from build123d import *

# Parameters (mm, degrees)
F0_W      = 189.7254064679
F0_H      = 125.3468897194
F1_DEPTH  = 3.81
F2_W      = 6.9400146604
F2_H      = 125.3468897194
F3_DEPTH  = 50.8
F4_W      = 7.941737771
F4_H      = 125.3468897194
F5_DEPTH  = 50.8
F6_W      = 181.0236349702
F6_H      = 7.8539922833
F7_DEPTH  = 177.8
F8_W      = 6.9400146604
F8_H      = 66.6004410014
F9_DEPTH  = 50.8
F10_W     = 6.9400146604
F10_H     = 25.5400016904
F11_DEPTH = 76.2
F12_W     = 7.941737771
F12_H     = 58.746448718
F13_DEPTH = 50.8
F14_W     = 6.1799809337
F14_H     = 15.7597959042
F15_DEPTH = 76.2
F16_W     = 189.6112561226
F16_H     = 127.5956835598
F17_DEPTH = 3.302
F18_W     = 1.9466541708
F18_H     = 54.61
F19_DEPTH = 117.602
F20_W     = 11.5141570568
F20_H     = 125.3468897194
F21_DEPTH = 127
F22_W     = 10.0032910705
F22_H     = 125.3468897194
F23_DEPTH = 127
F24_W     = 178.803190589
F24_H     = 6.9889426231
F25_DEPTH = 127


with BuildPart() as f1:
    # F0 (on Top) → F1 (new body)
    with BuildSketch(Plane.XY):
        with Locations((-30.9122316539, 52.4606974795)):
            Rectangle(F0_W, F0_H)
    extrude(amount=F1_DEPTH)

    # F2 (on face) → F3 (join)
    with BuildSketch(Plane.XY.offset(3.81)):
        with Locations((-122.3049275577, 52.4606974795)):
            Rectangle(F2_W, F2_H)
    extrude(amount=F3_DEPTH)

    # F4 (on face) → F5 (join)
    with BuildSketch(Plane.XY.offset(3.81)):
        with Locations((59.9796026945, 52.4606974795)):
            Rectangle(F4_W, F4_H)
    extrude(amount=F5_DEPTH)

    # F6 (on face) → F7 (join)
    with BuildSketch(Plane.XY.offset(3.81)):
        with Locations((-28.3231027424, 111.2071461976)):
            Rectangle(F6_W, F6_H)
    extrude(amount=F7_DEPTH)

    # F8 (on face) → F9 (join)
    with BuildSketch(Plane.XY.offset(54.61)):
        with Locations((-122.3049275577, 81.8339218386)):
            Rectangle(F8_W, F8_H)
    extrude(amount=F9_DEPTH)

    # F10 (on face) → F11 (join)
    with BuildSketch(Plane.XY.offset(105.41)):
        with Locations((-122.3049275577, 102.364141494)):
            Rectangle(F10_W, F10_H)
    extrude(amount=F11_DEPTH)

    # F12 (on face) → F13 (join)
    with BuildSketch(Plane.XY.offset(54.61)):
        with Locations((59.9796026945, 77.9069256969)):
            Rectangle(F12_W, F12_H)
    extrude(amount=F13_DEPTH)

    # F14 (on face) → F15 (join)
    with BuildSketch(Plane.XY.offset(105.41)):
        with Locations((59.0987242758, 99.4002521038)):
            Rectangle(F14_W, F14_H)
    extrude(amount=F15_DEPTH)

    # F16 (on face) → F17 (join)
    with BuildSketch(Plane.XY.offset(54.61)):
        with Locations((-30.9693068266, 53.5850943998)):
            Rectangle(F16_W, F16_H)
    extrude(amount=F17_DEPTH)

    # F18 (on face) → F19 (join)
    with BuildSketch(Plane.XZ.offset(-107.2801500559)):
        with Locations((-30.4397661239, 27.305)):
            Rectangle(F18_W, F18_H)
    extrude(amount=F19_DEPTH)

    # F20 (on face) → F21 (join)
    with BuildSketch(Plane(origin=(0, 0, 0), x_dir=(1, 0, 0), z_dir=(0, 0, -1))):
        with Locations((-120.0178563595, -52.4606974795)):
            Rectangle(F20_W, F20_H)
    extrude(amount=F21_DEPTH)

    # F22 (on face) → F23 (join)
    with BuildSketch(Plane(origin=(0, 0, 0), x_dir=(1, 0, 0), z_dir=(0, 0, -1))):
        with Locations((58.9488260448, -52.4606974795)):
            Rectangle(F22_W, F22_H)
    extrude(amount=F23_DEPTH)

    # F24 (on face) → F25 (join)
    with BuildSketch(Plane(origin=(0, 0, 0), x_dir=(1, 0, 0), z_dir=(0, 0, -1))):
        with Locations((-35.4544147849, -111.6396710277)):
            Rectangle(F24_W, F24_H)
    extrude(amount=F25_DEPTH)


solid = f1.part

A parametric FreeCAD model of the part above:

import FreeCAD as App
import Part
import Sketcher
from FreeCAD import Vector
Q = App.Units.Quantity


def add_polygon(sketch, points):
    """Adds a closed chain of lines whose ends are joined by coincident constraints."""
    first, n = sketch.GeometryCount, len(points)
    for a, b in zip(points, points[1:] + points[:1]):
        sketch.addGeometry(Part.LineSegment(App.Vector(*a, 0), App.Vector(*b, 0)), False)
    for i in range(n):
        sketch.addConstraint(Sketcher.Constraint("Coincident", first + i, 2, first + (i + 1) % n, 1))

doc = App.newDocument("Part")
body = doc.addObject("PartDesign::Body", "Body")

# Sketch on XY plane
sketch1 = body.newObject("Sketcher::SketchObject", "Sketch")
sketch1.AttachmentSupport = (doc.getObject("XY_Plane"), [""])
sketch1.MapMode = "FlatFace"
add_polygon(sketch1, [(-126, 115), (-126, -10), (64, -10), (64, 115)])  # lines 0-3
sketch1.addConstraint([
    Sketcher.Constraint("Vertical", 0),
    Sketcher.Constraint("Horizontal", 1),
    Sketcher.Constraint("Vertical", 2),
    Sketcher.Constraint("Horizontal", 3),
    Sketcher.Constraint("DistanceY", 0, 2, 0, 1, 125.34689),
    Sketcher.Constraint("DistanceX", 1, 1, 1, 2, 189.725406),
    Sketcher.Constraint("DistanceX", -1, 1, 1, 2, 63.950472),
    Sketcher.Constraint("DistanceY", 0, 2, -1, 1, 10.212747),
])
pad1 = body.newObject("PartDesign::Pad", "Pad")
pad1.Profile = sketch1
pad1.Length = Q("0.15 in")

# Sketch on XY plane
sketch2 = body.newObject("Sketcher::SketchObject", "Sketch001")
sketch2.AttachmentSupport = (doc.getObject("XY_Plane"), [""])
sketch2.MapMode = "FlatFace"
sketch2.AttachmentOffset = App.Placement(Vector(0, 0, 0.15 * 25.4), App.Rotation())
add_polygon(sketch2, [(-126, 115), (-126, -10), (-119, -10), (-119, 115)])  # lines 0-3
sketch2.addConstraint([
    Sketcher.Constraint("Vertical", 0),
    Sketcher.Constraint("Horizontal", 1),
    Sketcher.Constraint("Vertical", 2),
    Sketcher.Constraint("Horizontal", 3),
    Sketcher.Constraint("DistanceY", 0, 2, 0, 1, 125.34689),
    Sketcher.Constraint("DistanceX", 1, 1, 1, 2, 6.940015),
    Sketcher.Constraint("DistanceX", 1, 2, -1, 1, 118.83492),
    Sketcher.Constraint("DistanceY", 0, 2, -1, 1, 10.212747),
])
pad2 = body.newObject("PartDesign::Pad", "Pad001")
pad2.Profile = sketch2
pad2.Length = Q("2 in")

# Sketch on XY plane
sketch3 = body.newObject("Sketcher::SketchObject", "Sketch002")
sketch3.AttachmentSupport = (doc.getObject("XY_Plane"), [""])
sketch3.MapMode = "FlatFace"
sketch3.AttachmentOffset = App.Placement(Vector(0, 0, 0.15 * 25.4), App.Rotation())
add_polygon(sketch3, [(56, 115), (56, -10), (64, -10), (64, 115)])  # lines 0-3
sketch3.addConstraint([
    Sketcher.Constraint("Vertical", 0),
    Sketcher.Constraint("Horizontal", 1),
    Sketcher.Constraint("Vertical", 2),
    Sketcher.Constraint("Horizontal", 3),
    Sketcher.Constraint("DistanceY", 0, 2, 0, 1, 125.34689),
    Sketcher.Constraint("DistanceX", 1, 1, 1, 2, 7.941738),
    Sketcher.Constraint("DistanceX", -1, 1, 1, 2, 63.950472),
    Sketcher.Constraint("DistanceY", 0, 2, -1, 1, 10.212747),
])
pad3 = body.newObject("PartDesign::Pad", "Pad002")
pad3.Profile = sketch3
pad3.Length = Q("2 in")

# Sketch on XY plane
sketch4 = body.newObject("Sketcher::SketchObject", "Sketch003")
sketch4.AttachmentSupport = (doc.getObject("XY_Plane"), [""])
sketch4.MapMode = "FlatFace"
sketch4.AttachmentOffset = App.Placement(Vector(0, 0, 0.15 * 25.4), App.Rotation())
add_polygon(sketch4, [(-119, 115), (-119, 107), (62, 107), (62, 115)])  # lines 0-3
sketch4.addConstraint([
    Sketcher.Constraint("Vertical", 0),
    Sketcher.Constraint("Horizontal", 1),
    Sketcher.Constraint("Vertical", 2),
    Sketcher.Constraint("Horizontal", 3),
    Sketcher.Constraint("DistanceX", 1, 1, 1, 2, 181.023635),
    Sketcher.Constraint("DistanceY", 0, 2, 0, 1, 7.853992),
    Sketcher.Constraint("DistanceX", 0, 2, -1, 1, 118.83492),
    Sketcher.Constraint("DistanceY", -1, 1, 0, 2, 107.28015),
])
pad4 = body.newObject("PartDesign::Pad", "Pad003")
pad4.Profile = sketch4
pad4.Length = Q("7 in")

# Sketch on XY plane
sketch5 = body.newObject("Sketcher::SketchObject", "Sketch004")
sketch5.AttachmentSupport = (doc.getObject("XY_Plane"), [""])
sketch5.MapMode = "FlatFace"
sketch5.AttachmentOffset = App.Placement(Vector(0, 0, 2.15 * 25.4), App.Rotation())
add_polygon(sketch5, [(-126, 115), (-126, 49), (-119, 49), (-119, 115)])  # lines 0-3
sketch5.addConstraint([
    Sketcher.Constraint("Vertical", 0),
    Sketcher.Constraint("Horizontal", 1),
    Sketcher.Constraint("Vertical", 2),
    Sketcher.Constraint("Horizontal", 3),
    Sketcher.Constraint("DistanceY", 0, 2, 0, 1, 66.600441),
    Sketcher.Constraint("DistanceY", -1, 1, 0, 2, 48.533701),
    Sketcher.Constraint("DistanceX", 1, 1, 1, 2, 6.940015),
    Sketcher.Constraint("DistanceX", 1, 2, -1, 1, 118.83492),
])
pad5 = body.newObject("PartDesign::Pad", "Pad004")
pad5.Profile = sketch5
pad5.Length = Q("2 in")

# Sketch on XY plane
sketch6 = body.newObject("Sketcher::SketchObject", "Sketch005")
sketch6.AttachmentSupport = (doc.getObject("XY_Plane"), [""])
sketch6.MapMode = "FlatFace"
sketch6.AttachmentOffset = App.Placement(Vector(0, 0, 4.15 * 25.4), App.Rotation())
add_polygon(sketch6, [(-126, 115), (-126, 90), (-119, 90), (-119, 115)])  # lines 0-3
sketch6.addConstraint([
    Sketcher.Constraint("Vertical", 0),
    Sketcher.Constraint("Horizontal", 1),
    Sketcher.Constraint("Vertical", 2),
    Sketcher.Constraint("Horizontal", 3),
    Sketcher.Constraint("DistanceY", 0, 2, 0, 1, 25.540002),
    Sketcher.Constraint("DistanceX", 1, 1, 1, 2, 6.940015),
    Sketcher.Constraint("DistanceY", -1, 1, 0, 2, 89.594141),
    Sketcher.Constraint("DistanceX", 1, 2, -1, 1, 118.83492),
])
pad6 = body.newObject("PartDesign::Pad", "Pad005")
pad6.Profile = sketch6
pad6.Length = Q("3 in")

# Sketch on XY plane
sketch7 = body.newObject("Sketcher::SketchObject", "Sketch006")
sketch7.AttachmentSupport = (doc.getObject("XY_Plane"), [""])
sketch7.MapMode = "FlatFace"
sketch7.AttachmentOffset = App.Placement(Vector(0, 0, 2.15 * 25.4), App.Rotation())
add_polygon(sketch7, [(56, 107), (56, 49), (64, 49), (64, 107)])  # lines 0-3
sketch7.addConstraint([
    Sketcher.Constraint("Vertical", 0),
    Sketcher.Constraint("Horizontal", 1),
    Sketcher.Constraint("Vertical", 2),
    Sketcher.Constraint("Horizontal", 3),
    Sketcher.Constraint("DistanceY", 0, 2, 0, 1, 58.746449),
    Sketcher.Constraint("DistanceY", -1, 1, 0, 2, 48.533701),
    Sketcher.Constraint("DistanceX", 1, 1, 1, 2, 7.941738),
    Sketcher.Constraint("DistanceX", -1, 1, 1, 2, 63.950472),
])
pad7 = body.newObject("PartDesign::Pad", "Pad006")
pad7.Profile = sketch7
pad7.Length = Q("2 in")

# Sketch on XY plane
sketch8 = body.newObject("Sketcher::SketchObject", "Sketch007")
sketch8.AttachmentSupport = (doc.getObject("XY_Plane"), [""])
sketch8.MapMode = "FlatFace"
sketch8.AttachmentOffset = App.Placement(Vector(0, 0, 4.15 * 25.4), App.Rotation())
add_polygon(sketch8, [(56, 107), (56, 92), (62, 92), (62, 107)])  # lines 0-3
sketch8.addConstraint([
    Sketcher.Constraint("Vertical", 0),
    Sketcher.Constraint("Horizontal", 1),
    Sketcher.Constraint("Vertical", 2),
    Sketcher.Constraint("Horizontal", 3),
    Sketcher.Constraint("DistanceX", 1, 1, 1, 2, 6.179981),
    Sketcher.Constraint("DistanceY", 0, 2, 0, 1, 15.759796),
    Sketcher.Constraint("DistanceY", -1, 1, 2, 2, 107.28015),
    Sketcher.Constraint("DistanceX", -1, 1, 0, 2, 56.008734),
])
pad8 = body.newObject("PartDesign::Pad", "Pad007")
pad8.Profile = sketch8
pad8.Length = Q("3 in")

# Sketch on XY plane
sketch9 = body.newObject("Sketcher::SketchObject", "Sketch008")
sketch9.AttachmentSupport = (doc.getObject("XY_Plane"), [""])
sketch9.MapMode = "FlatFace"
sketch9.AttachmentOffset = App.Placement(Vector(0, 0, 2.15 * 25.4), App.Rotation())
add_polygon(sketch9, [(-126, 117), (-126, -10), (64, -10), (64, 117)])  # lines 0-3
sketch9.addConstraint([
    Sketcher.Constraint("Vertical", 0),
    Sketcher.Constraint("Horizontal", 1),
    Sketcher.Constraint("Vertical", 2),
    Sketcher.Constraint("Horizontal", 3),
    Sketcher.Constraint("DistanceX", 1, 1, 1, 2, 189.611256),
    Sketcher.Constraint("DistanceY", 0, 2, 0, 1, 127.595684),
    Sketcher.Constraint("DistanceX", -1, 1, 1, 2, 63.836321),
    Sketcher.Constraint("DistanceY", 0, 2, -1, 1, 10.212747),
])
pad9 = body.newObject("PartDesign::Pad", "Pad008")
pad9.Profile = sketch9
pad9.Length = Q("0.13 in")

# Sketch on XZ plane
sketch10 = body.newObject("Sketcher::SketchObject", "Sketch009")
sketch10.AttachmentSupport = (doc.getObject("XZ_Plane"), [""])
sketch10.MapMode = "FlatFace"
sketch10.AttachmentOffset = App.Placement(Vector(0, 0, -107.28015), App.Rotation())
add_polygon(sketch10, [(-31.4, 54.6), (-31.4, 0), (-29.5, 0), (-29.5, 54.6)])  # lines 0-3
sketch10.addConstraint([
    Sketcher.Constraint("Vertical", 0),
    Sketcher.Constraint("Horizontal", 1),
    Sketcher.Constraint("Vertical", 2),
    Sketcher.Constraint("Horizontal", 3),
    Sketcher.Constraint("PointOnObject", 0, 2, -1),
    Sketcher.Constraint("DistanceY", 0, 2, 0, 1, Q("2.15 in")),
    Sketcher.Constraint("DistanceX", 1, 1, 1, 2, 1.946654),
    Sketcher.Constraint("DistanceX", 1, 2, -1, 1, 29.466439),
])
pad10 = body.newObject("PartDesign::Pad", "Pad009")
pad10.Profile = sketch10
pad10.Length = Q("4.63 in")

# Sketch on XY plane
sketch11 = body.newObject("Sketcher::SketchObject", "Sketch010")
sketch11.AttachmentSupport = (doc.getObject("XY_Plane"), [""])
sketch11.MapMode = "FlatFace"
add_polygon(sketch11, [(-126, -10), (-126, 115), (-114, 115), (-114, -10)])  # lines 0-3
sketch11.addConstraint([
    Sketcher.Constraint("Vertical", 0),
    Sketcher.Constraint("Horizontal", 1),
    Sketcher.Constraint("Vertical", 2),
    Sketcher.Constraint("Horizontal", 3),
    Sketcher.Constraint("DistanceY", 0, 1, 0, 2, 125.34689),
    Sketcher.Constraint("DistanceX", 1, 1, 1, 2, 11.514157),
    Sketcher.Constraint("DistanceX", 0, 2, -1, 1, 125.774935),
    Sketcher.Constraint("DistanceY", -1, 1, 0, 2, 115.134142),
])
pad11 = body.newObject("PartDesign::Pad", "Pad010")
pad11.Profile = sketch11
pad11.Length = Q("5 in")
pad11.Reversed = True

# Sketch on XY plane
sketch12 = body.newObject("Sketcher::SketchObject", "Sketch011")
sketch12.AttachmentSupport = (doc.getObject("XY_Plane"), [""])
sketch12.MapMode = "FlatFace"
add_polygon(sketch12, [(54, -10), (54, 115), (64, 115), (64, -10)])  # lines 0-3
sketch12.addConstraint([
    Sketcher.Constraint("Vertical", 0),
    Sketcher.Constraint("Horizontal", 1),
    Sketcher.Constraint("Vertical", 2),
    Sketcher.Constraint("Horizontal", 3),
    Sketcher.Constraint("DistanceX", 1, 1, 1, 2, 10.003291),
    Sketcher.Constraint("DistanceY", 0, 1, 0, 2, 125.34689),
    Sketcher.Constraint("DistanceX", -1, 1, 0, 2, 53.947181),
    Sketcher.Constraint("DistanceY", -1, 1, 0, 2, 115.134142),
])
pad12 = body.newObject("PartDesign::Pad", "Pad011")
pad12.Profile = sketch12
pad12.Length = Q("5 in")
pad12.Reversed = True

# Sketch on XY plane
sketch13 = body.newObject("Sketcher::SketchObject", "Sketch012")
sketch13.AttachmentSupport = (doc.getObject("XY_Plane"), [""])
sketch13.MapMode = "FlatFace"
add_polygon(sketch13, [(-125, 108), (-125, 115), (54, 115), (54, 108)])  # lines 0-3
sketch13.addConstraint([
    Sketcher.Constraint("Vertical", 0),
    Sketcher.Constraint("Horizontal", 1),
    Sketcher.Constraint("Vertical", 2),
    Sketcher.Constraint("Horizontal", 3),
    Sketcher.Constraint("DistanceX", 1, 1, 1, 2, 178.803191),
    Sketcher.Constraint("DistanceY", -1, 1, 2, 2, 108.1452),
    Sketcher.Constraint("DistanceY", 0, 1, 0, 2, 6.988943),
    Sketcher.Constraint("DistanceX", 0, 2, -1, 1, 124.85601),
])
pad13 = body.newObject("PartDesign::Pad", "Pad012")
pad13.Profile = sketch13
pad13.Length = Q("5 in")
pad13.Reversed = True

doc.recompute()
